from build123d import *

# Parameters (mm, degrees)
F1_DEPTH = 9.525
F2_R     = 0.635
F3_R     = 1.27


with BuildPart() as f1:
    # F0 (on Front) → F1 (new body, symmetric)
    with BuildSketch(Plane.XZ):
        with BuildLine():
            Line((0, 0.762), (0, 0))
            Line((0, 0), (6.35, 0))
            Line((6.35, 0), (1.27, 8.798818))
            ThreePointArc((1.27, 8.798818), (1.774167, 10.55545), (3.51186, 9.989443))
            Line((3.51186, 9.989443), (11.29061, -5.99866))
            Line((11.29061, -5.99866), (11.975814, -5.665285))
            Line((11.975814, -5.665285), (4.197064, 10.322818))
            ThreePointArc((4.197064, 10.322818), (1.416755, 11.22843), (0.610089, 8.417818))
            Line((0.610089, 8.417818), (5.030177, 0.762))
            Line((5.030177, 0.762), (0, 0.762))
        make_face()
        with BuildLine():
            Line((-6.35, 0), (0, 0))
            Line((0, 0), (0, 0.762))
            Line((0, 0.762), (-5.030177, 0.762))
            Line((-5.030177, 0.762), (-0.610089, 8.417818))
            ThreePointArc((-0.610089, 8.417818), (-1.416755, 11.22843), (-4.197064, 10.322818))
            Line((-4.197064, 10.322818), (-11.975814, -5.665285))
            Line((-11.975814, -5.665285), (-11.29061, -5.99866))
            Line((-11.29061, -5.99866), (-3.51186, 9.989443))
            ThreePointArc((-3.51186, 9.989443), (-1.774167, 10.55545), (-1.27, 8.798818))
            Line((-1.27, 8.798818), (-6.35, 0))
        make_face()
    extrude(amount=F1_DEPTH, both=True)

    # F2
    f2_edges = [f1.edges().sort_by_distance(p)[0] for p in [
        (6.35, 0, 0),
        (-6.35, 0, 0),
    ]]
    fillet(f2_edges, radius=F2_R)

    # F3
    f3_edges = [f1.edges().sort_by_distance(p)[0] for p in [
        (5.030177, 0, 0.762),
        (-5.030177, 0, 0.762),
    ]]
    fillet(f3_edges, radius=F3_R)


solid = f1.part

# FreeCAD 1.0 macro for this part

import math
import FreeCAD as App
import Part
import Sketcher
from FreeCAD import Vector
Q = App.Units.Quantity


def edges_at(feature, points):
    """Names of the edges that pass closest to the given points."""
    edges = feature.Shape.Edges
    near = lambda p: min(range(len(edges)), key=lambda i: edges[i].distToShape(Part.Vertex(*p))[0])
    return sorted({f"Edge{near(p) + 1}" for p in points})

doc = App.newDocument("Part")
body = doc.addObject("PartDesign::Body", "Body")

# Sketch on XZ plane
sketch1 = doc.addObject("Sketcher::SketchObject", "Sketch")
body.addObject(sketch1)
sketch1.AttachmentSupport = (doc.XZ_Plane, [""])
sketch1.MapMode = "FlatFace"
sketch1.addGeometry([
    Part.LineSegment(Vector(6.35, 0, 0), Vector(1.27, 8.798818, 0)),  # 0
    Part.ArcOfCircle(Part.Circle(Vector(2.369853, 9.433818, 0), Vector(0, 0, 1), 1.27), math.radians(25.944492), math.radians(209.99998)),  # 1
    Part.LineSegment(Vector(3.51186, 9.989443, 0), Vector(11.29061, -5.99866, 0)),  # 2
    Part.LineSegment(Vector(11.29061, -5.99866, 0), Vector(11.975814, -5.665285, 0)),  # 3
    Part.LineSegment(Vector(11.975814, -5.665285, 0), Vector(4.197064, 10.322818, 0)),  # 4
    Part.ArcOfCircle(Part.Circle(Vector(2.369852, 9.433819, 0), Vector(0, 0, 1), 2.032), math.radians(25.944458), math.radians(210.000028)),  # 5
    Part.LineSegment(Vector(0.610089, 8.417818, 0), Vector(5.030177, 0.762, 0)),  # 6
    Part.LineSegment(Vector(5.030177, 0.762, 0), Vector(-5.030177, 0.762, 0)),  # 7
    Part.LineSegment(Vector(-5.030177, 0.762, 0), Vector(-0.610089, 8.417818, 0)),  # 8
    Part.ArcOfCircle(Part.Circle(Vector(-2.369852, 9.433819, 0), Vector(0, 0, 1), 2.032), math.radians(-30.000028), math.radians(154.055542)),  # 9
    Part.LineSegment(Vector(-4.197064, 10.322818, 0), Vector(-11.975814, -5.665285, 0)),  # 10
    Part.LineSegment(Vector(-11.975814, -5.665285, 0), Vector(-11.29061, -5.99866, 0)),  # 11
    Part.LineSegment(Vector(-11.29061, -5.99866, 0), Vector(-3.51186, 9.989443, 0)),  # 12
    Part.ArcOfCircle(Part.Circle(Vector(-2.369853, 9.433818, 0), Vector(0, 0, 1), 1.27), math.radians(-29.99998), math.radians(154.055508)),  # 13
    Part.LineSegment(Vector(-1.27, 8.798818, 0), Vector(-6.35, 0, 0)),  # 14
    Part.LineSegment(Vector(-6.35, 0, 0), Vector(6.35, 0, 0)),  # 15
], False)
sketch1.addConstraint([
    Sketcher.Constraint("Tangent", 0, 2, 1, 2),
    Sketcher.Constraint("Tangent", 1, 1, 2, 1),
    Sketcher.Constraint("Coincident", 2, 2, 3, 1),
    Sketcher.Constraint("Coincident", 3, 2, 4, 1),
    Sketcher.Constraint("Tangent", 4, 2, 5, 1),
    Sketcher.Constraint("Tangent", 5, 2, 6, 1),
    Sketcher.Constraint("Coincident", 6, 2, 7, 1),
    Sketcher.Constraint("Coincident", 7, 2, 8, 1),
    Sketcher.Constraint("Tangent", 8, 2, 9, 1),
    Sketcher.Constraint("Tangent", 9, 2, 10, 1),
    Sketcher.Constraint("Coincident", 10, 2, 11, 1),
    Sketcher.Constraint("Coincident", 11, 2, 12, 1),
    Sketcher.Constraint("Tangent", 12, 2, 13, 2),
    Sketcher.Constraint("Tangent", 13, 1, 14, 1),
    Sketcher.Constraint("Coincident", 14, 2, 15, 1),
    Sketcher.Constraint("Coincident", 15, 2, 0, 1),
    Sketcher.Constraint("Horizontal", 7),
    Sketcher.Constraint("Horizontal", 15),
    Sketcher.Constraint("Coincident", 5, 3, 1, 3),
    Sketcher.Constraint("Coincident", 13, 3, 9, 3),
    Sketcher.Constraint("Equal", 5, 9),
    Sketcher.Constraint("Equal", 1, 13),
    Sketcher.Constraint("Symmetric", 14, 2, 15, 2, -1, 1),
    Sketcher.Constraint("Symmetric", 1, 3, 9, 3, -2),
    Sketcher.Constraint("Symmetric", 3, 2, 10, 2, -2),
    Sketcher.Constraint("Symmetric", 2, 2, 11, 2, -2),
    Sketcher.Constraint("Perpendicular", 2, 3),
    Sketcher.Constraint("Perpendicular", 3, 4),
    Sketcher.Constraint("Parallel", 0, 6),
    Sketcher.Constraint("Parallel", 8, 14),
    Sketcher.Constraint("Radius", 1, Q("0.05 in")),
    Sketcher.Constraint("Radius", 5, Q("0.08 in")),
    Sketcher.Constraint("DistanceX", 15, 1, 15, 2, Q("0.5 in")),
    Sketcher.Constraint("Angle", 0, Q("120 deg")),
    Sketcher.Constraint("Distance", 0, Q("0.4 in")),
    Sketcher.Constraint("Distance", 2, Q("0.7 in")),
    Sketcher.Constraint("DistanceY", -1, 1, 6, 2, Q("0.03 in")),
    Sketcher.Constraint("DistanceY", 0, 2, 4, 2, Q("0.06 in")),
])
pad1 = doc.addObject("PartDesign::Pad", "Pad")
body.addObject(pad1)
pad1.Profile = sketch1
pad1.Length = Q("0.75 in")
pad1.Midplane = True
doc.recompute()

fillet = doc.addObject("PartDesign::Fillet", "Fillet")
body.addObject(fillet)
fillet.Base = (pad1, edges_at(pad1, [(6.35, 0, 0), (-6.35, 0, 0)]))
fillet.Radius = Q("0.025 in")
doc.recompute()

fillet2 = doc.addObject("PartDesign::Fillet", "Fillet001")
body.addObject(fillet2)
fillet2.Base = (fillet, edges_at(fillet, [(5.03, 0, 0.762), (-5.03, 0, 0.762)]))
fillet2.Radius = Q("0.05 in")

doc.recompute()
